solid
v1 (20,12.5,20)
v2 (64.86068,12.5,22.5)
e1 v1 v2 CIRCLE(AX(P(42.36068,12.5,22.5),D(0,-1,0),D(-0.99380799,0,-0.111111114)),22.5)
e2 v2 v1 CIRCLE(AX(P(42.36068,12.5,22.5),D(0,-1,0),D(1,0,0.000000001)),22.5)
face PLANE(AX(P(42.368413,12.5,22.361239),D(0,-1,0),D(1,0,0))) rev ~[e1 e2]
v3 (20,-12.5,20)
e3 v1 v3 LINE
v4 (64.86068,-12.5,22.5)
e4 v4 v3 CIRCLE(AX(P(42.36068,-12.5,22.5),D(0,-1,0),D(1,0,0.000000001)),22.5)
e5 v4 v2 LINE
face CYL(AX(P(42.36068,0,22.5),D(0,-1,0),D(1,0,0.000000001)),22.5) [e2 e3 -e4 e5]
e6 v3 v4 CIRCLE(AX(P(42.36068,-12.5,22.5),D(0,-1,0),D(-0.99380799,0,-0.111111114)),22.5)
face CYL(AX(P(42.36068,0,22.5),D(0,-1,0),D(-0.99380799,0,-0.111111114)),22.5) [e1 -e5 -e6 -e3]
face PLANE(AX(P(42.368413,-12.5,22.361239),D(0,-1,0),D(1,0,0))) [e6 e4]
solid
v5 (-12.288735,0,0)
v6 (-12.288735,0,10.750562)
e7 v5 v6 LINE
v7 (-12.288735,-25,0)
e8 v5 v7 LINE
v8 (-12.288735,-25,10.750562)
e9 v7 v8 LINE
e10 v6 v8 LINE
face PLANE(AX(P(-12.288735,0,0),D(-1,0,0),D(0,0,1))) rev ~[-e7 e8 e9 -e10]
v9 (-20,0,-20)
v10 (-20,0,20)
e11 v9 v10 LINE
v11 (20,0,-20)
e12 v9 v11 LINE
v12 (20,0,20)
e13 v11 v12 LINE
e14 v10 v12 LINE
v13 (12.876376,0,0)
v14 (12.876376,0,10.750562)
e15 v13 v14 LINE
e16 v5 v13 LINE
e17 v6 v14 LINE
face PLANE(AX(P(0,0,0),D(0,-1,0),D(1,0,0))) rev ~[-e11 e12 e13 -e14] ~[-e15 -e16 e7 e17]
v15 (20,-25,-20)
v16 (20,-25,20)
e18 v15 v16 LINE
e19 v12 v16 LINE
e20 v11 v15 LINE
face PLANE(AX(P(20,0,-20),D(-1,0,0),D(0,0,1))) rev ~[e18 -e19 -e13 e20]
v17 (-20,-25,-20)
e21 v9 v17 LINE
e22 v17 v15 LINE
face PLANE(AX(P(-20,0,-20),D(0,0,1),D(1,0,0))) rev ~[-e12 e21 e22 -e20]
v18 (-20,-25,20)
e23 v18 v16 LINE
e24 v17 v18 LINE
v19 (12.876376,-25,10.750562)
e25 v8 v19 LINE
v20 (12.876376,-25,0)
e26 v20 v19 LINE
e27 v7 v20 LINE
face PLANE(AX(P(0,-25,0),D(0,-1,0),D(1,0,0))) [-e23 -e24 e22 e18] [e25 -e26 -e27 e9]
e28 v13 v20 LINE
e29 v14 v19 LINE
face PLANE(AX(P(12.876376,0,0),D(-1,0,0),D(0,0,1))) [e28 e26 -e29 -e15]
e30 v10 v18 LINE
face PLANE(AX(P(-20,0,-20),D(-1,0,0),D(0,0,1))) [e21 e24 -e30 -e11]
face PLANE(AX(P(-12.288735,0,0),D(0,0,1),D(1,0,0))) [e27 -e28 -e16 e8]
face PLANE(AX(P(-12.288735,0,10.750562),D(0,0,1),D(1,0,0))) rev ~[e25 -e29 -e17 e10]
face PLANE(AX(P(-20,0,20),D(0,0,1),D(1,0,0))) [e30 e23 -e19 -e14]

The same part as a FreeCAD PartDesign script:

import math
import FreeCAD as App
import Part
import Sketcher


def add_polygon(sketch, points):
    """Adds a closed chain of lines whose ends are joined by coincident constraints."""
    first, n = sketch.GeometryCount, len(points)
    for a, b in zip(points, points[1:] + points[:1]):
        sketch.addGeometry(Part.LineSegment(App.Vector(*a, 0), App.Vector(*b, 0)), False)
    for i in range(n):
        sketch.addConstraint(Sketcher.Constraint("Coincident", first + i, 2, first + (i + 1) % n, 1))

doc = App.newDocument("Part")
body = doc.addObject("PartDesign::Body", "Body")

# Sketch on XZ plane
sketch1 = body.newObject("Sketcher::SketchObject", "Sketch")
sketch1.AttachmentSupport = (doc.getObject("XZ_Plane"), [""])
sketch1.MapMode = "FlatFace"
add_polygon(sketch1, [(-20, 20), (-20, -20), (20, -20), (20, 20)])  # lines 0-3
add_polygon(sketch1, [(13, 0), (-12, 0), (-12, 11), (13, 11)])  # lines 4-7
sketch1.addConstraint([
    Sketcher.Constraint("Vertical", 0),
    Sketcher.Constraint("Horizontal", 1),
    Sketcher.Constraint("Vertical", 2),
    Sketcher.Constraint("Horizontal", 3),
    Sketcher.Constraint("Horizontal", 4),
    Sketcher.Constraint("Vertical", 5),
    Sketcher.Constraint("Horizontal", 6),
    Sketcher.Constraint("Vertical", 7),
    Sketcher.Constraint("Symmetric", 0, 2, 2, 2, -1, 1),
    Sketcher.Constraint("PointOnObject", 4, 2, -1),
    Sketcher.Constraint("Equal", 3, 0),
    Sketcher.Constraint("DistanceX", 1, 1, 1, 2, 40.0),
    Sketcher.Constraint("DistanceX", 4, 2, 4, 1, 25.165111),
    Sketcher.Constraint("DistanceY", 5, 1, 5, 2, 10.750562),
    Sketcher.Constraint("DistanceX", 4, 2, -1, 1, 12.288735),
])
pad1 = body.newObject("PartDesign::Pad", "Pad")
pad1.Profile = sketch1
pad1.Length = 25
body2 = doc.addObject("PartDesign::Body", "Body001")

# Sketch on XZ plane
sketch2 = body2.newObject("Sketcher::SketchObject", "Sketch001")
sketch2.AttachmentSupport = (doc.getObject("XZ_Plane001"), [""])
sketch2.MapMode = "FlatFace"
sketch2.addGeometry([
    Part.ArcOfCircle(Part.Circle(App.Vector(42, 22, 0), App.Vector(0, 0, 1), 23), math.radians(0), math.radians(186)),
    Part.ArcOfCircle(Part.Circle(App.Vector(42, 23, 0), App.Vector(0, 0, 1), 23), math.radians(-174), math.radians(0)),
], False)
sketch2.addConstraint([
    Sketcher.Constraint("Tangent", 0, 1, 1, 2),
    Sketcher.Constraint("Coincident", 1, 1, 0, 2),
    Sketcher.Constraint("Horizontal", 1, 3, 0, 1),
    Sketcher.Constraint("Radius", 0, 22.5),
    Sketcher.Constraint("DistanceX", -1, 1, 1, 1, 20.0),
    Sketcher.Constraint("DistanceY", -1, 1, 1, 1, 20.0),
    Sketcher.Constraint("DistanceY", -1, 1, 0, 3, 22.5),
])
pad2 = body2.newObject("PartDesign::Pad", "Pad001")
pad2.Profile = sketch2
pad2.Length = 25
pad2.Midplane = True

doc.recompute()
